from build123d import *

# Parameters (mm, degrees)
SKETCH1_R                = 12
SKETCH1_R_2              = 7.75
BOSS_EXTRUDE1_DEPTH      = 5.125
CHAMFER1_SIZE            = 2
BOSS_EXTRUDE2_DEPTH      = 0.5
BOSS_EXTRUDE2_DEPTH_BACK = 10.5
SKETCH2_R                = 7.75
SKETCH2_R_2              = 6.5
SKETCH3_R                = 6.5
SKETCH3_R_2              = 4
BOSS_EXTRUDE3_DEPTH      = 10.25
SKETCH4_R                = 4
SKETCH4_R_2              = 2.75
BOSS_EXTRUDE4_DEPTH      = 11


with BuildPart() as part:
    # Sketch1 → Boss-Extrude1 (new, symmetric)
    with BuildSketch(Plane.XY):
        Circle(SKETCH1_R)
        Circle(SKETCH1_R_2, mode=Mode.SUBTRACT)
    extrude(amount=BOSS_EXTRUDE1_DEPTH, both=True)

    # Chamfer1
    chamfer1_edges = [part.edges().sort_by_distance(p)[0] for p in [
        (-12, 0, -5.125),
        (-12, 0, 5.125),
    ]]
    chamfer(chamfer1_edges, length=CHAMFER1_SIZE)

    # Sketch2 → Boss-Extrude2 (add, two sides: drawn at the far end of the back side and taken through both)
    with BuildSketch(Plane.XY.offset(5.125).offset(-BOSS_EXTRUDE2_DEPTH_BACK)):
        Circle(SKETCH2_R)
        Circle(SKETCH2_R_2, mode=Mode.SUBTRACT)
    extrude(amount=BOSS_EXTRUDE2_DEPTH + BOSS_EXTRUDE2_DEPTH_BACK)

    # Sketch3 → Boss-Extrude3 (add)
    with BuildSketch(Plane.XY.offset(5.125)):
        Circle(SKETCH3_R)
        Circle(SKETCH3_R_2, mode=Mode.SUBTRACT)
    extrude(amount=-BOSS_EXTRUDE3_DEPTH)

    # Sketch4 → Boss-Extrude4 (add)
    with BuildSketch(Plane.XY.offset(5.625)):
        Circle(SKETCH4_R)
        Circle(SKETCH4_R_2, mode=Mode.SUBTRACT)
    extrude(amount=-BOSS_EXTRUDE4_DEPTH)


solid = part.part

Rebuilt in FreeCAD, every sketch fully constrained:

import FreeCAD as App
import Part
import Sketcher


def edges_at(feature, points):
    """Names of the edges that pass closest to the given points."""
    edges = feature.Shape.Edges
    near = lambda p: min(range(len(edges)), key=lambda i: edges[i].distToShape(Part.Vertex(*p))[0])
    return sorted({f"Edge{near(p) + 1}" for p in points})

doc = App.newDocument("Part")
body = doc.addObject("PartDesign::Body", "Body")

# Sketch on XY plane
sketch1 = doc.addObject("Sketcher::SketchObject", "Sketch")
body.addObject(sketch1)
sketch1.AttachmentSupport = (doc.XY_Plane, [""])
sketch1.MapMode = "FlatFace"
sketch1.addGeometry(Part.Circle(App.Vector(0, 0, 0), App.Vector(0, 0, 1), 12), False)
sketch1.addGeometry(Part.Circle(App.Vector(0, 0, 0), App.Vector(0, 0, 1), 8), False)
sketch1.addConstraint(Sketcher.Constraint("Coincident", 0, 3, -1, 1))
sketch1.addConstraint(Sketcher.Constraint("Coincident", 1, 3, -1, 1))
sketch1.addConstraint(Sketcher.Constraint("Diameter", 0, 24.0))
sketch1.addConstraint(Sketcher.Constraint("Diameter", 1, 15.5))
pad1 = doc.addObject("PartDesign::Pad", "Pad")
body.addObject(pad1)
pad1.Profile = sketch1
pad1.Length = 10.25
pad1.Midplane = True
doc.recompute()

chamfer = doc.addObject("PartDesign::Chamfer", "Chamfer")
body.addObject(chamfer)
chamfer.Base = (pad1, edges_at(pad1, [(-12, 0, -5.125), (-12, 0, 5.125)]))
chamfer.Size = 2

# Sketch on XY plane
sketch2 = doc.addObject("Sketcher::SketchObject", "Sketch001")
body.addObject(sketch2)
sketch2.AttachmentSupport = (doc.XY_Plane, [""])
sketch2.MapMode = "FlatFace"
sketch2.AttachmentOffset = App.Placement(App.Vector(0, 0, 5.125), App.Rotation())
sketch2.addGeometry(Part.Circle(App.Vector(0, 0, 0), App.Vector(0, 0, 1), 8), False)
sketch2.addGeometry(Part.Circle(App.Vector(0, 0, 0), App.Vector(0, 0, 1), 6), False)
sketch2.addConstraint(Sketcher.Constraint("Coincident", 0, 3, -1, 1))
sketch2.addConstraint(Sketcher.Constraint("Coincident", 1, 3, -1, 1))
sketch2.addConstraint(Sketcher.Constraint("Diameter", 1, 13.0))
sketch2.addConstraint(Sketcher.Constraint("Diameter", 0, 15.5))
pad2 = doc.addObject("PartDesign::Pad", "Pad001")
body.addObject(pad2)
pad2.Profile = sketch2
pad2.Type = "TwoLengths"
pad2.Length = 0.5
pad2.Length2 = 10.5

# Sketch on XY plane
sketch3 = doc.addObject("Sketcher::SketchObject", "Sketch002")
body.addObject(sketch3)
sketch3.AttachmentSupport = (doc.XY_Plane, [""])
sketch3.MapMode = "FlatFace"
sketch3.AttachmentOffset = App.Placement(App.Vector(0, 0, 5.125), App.Rotation())
sketch3.addGeometry(Part.Circle(App.Vector(0, 0, 0), App.Vector(0, 0, 1), 6.5), False)
sketch3.addGeometry(Part.Circle(App.Vector(0, 0, 0), App.Vector(0, 0, 1), 4), False)
sketch3.addConstraint(Sketcher.Constraint("Coincident", 0, 3, -1, 1))
sketch3.addConstraint(Sketcher.Constraint("Coincident", 1, 3, -1, 1))
sketch3.addConstraint(Sketcher.Constraint("Diameter", 0, 13.0))
sketch3.addConstraint(Sketcher.Constraint("Diameter", 1, 8.0))
pad3 = doc.addObject("PartDesign::Pad", "Pad002")
body.addObject(pad3)
pad3.Profile = sketch3
pad3.Length = 10.25
pad3.Reversed = True

# Sketch on XY plane
sketch4 = doc.addObject("Sketcher::SketchObject", "Sketch003")
body.addObject(sketch4)
sketch4.AttachmentSupport = (doc.XY_Plane, [""])
sketch4.MapMode = "FlatFace"
sketch4.AttachmentOffset = App.Placement(App.Vector(0, 0, 5.625), App.Rotation())
sketch4.addGeometry(Part.Circle(App.Vector(0, 0, 0), App.Vector(0, 0, 1), 4), False)
sketch4.addGeometry(Part.Circle(App.Vector(0, 0, 0), App.Vector(0, 0, 1), 2.8), False)
sketch4.addConstraint(Sketcher.Constraint("Coincident", 0, 3, -1, 1))
sketch4.addConstraint(Sketcher.Constraint("Coincident", 1, 3, -1, 1))
sketch4.addConstraint(Sketcher.Constraint("Diameter", 0, 8.0))
sketch4.addConstraint(Sketcher.Constraint("Diameter", 1, 5.5))
pad4 = doc.addObject("PartDesign::Pad", "Pad003")
body.addObject(pad4)
pad4.Profile = sketch4
pad4.Length = 11
pad4.Reversed = True

doc.recompute()
